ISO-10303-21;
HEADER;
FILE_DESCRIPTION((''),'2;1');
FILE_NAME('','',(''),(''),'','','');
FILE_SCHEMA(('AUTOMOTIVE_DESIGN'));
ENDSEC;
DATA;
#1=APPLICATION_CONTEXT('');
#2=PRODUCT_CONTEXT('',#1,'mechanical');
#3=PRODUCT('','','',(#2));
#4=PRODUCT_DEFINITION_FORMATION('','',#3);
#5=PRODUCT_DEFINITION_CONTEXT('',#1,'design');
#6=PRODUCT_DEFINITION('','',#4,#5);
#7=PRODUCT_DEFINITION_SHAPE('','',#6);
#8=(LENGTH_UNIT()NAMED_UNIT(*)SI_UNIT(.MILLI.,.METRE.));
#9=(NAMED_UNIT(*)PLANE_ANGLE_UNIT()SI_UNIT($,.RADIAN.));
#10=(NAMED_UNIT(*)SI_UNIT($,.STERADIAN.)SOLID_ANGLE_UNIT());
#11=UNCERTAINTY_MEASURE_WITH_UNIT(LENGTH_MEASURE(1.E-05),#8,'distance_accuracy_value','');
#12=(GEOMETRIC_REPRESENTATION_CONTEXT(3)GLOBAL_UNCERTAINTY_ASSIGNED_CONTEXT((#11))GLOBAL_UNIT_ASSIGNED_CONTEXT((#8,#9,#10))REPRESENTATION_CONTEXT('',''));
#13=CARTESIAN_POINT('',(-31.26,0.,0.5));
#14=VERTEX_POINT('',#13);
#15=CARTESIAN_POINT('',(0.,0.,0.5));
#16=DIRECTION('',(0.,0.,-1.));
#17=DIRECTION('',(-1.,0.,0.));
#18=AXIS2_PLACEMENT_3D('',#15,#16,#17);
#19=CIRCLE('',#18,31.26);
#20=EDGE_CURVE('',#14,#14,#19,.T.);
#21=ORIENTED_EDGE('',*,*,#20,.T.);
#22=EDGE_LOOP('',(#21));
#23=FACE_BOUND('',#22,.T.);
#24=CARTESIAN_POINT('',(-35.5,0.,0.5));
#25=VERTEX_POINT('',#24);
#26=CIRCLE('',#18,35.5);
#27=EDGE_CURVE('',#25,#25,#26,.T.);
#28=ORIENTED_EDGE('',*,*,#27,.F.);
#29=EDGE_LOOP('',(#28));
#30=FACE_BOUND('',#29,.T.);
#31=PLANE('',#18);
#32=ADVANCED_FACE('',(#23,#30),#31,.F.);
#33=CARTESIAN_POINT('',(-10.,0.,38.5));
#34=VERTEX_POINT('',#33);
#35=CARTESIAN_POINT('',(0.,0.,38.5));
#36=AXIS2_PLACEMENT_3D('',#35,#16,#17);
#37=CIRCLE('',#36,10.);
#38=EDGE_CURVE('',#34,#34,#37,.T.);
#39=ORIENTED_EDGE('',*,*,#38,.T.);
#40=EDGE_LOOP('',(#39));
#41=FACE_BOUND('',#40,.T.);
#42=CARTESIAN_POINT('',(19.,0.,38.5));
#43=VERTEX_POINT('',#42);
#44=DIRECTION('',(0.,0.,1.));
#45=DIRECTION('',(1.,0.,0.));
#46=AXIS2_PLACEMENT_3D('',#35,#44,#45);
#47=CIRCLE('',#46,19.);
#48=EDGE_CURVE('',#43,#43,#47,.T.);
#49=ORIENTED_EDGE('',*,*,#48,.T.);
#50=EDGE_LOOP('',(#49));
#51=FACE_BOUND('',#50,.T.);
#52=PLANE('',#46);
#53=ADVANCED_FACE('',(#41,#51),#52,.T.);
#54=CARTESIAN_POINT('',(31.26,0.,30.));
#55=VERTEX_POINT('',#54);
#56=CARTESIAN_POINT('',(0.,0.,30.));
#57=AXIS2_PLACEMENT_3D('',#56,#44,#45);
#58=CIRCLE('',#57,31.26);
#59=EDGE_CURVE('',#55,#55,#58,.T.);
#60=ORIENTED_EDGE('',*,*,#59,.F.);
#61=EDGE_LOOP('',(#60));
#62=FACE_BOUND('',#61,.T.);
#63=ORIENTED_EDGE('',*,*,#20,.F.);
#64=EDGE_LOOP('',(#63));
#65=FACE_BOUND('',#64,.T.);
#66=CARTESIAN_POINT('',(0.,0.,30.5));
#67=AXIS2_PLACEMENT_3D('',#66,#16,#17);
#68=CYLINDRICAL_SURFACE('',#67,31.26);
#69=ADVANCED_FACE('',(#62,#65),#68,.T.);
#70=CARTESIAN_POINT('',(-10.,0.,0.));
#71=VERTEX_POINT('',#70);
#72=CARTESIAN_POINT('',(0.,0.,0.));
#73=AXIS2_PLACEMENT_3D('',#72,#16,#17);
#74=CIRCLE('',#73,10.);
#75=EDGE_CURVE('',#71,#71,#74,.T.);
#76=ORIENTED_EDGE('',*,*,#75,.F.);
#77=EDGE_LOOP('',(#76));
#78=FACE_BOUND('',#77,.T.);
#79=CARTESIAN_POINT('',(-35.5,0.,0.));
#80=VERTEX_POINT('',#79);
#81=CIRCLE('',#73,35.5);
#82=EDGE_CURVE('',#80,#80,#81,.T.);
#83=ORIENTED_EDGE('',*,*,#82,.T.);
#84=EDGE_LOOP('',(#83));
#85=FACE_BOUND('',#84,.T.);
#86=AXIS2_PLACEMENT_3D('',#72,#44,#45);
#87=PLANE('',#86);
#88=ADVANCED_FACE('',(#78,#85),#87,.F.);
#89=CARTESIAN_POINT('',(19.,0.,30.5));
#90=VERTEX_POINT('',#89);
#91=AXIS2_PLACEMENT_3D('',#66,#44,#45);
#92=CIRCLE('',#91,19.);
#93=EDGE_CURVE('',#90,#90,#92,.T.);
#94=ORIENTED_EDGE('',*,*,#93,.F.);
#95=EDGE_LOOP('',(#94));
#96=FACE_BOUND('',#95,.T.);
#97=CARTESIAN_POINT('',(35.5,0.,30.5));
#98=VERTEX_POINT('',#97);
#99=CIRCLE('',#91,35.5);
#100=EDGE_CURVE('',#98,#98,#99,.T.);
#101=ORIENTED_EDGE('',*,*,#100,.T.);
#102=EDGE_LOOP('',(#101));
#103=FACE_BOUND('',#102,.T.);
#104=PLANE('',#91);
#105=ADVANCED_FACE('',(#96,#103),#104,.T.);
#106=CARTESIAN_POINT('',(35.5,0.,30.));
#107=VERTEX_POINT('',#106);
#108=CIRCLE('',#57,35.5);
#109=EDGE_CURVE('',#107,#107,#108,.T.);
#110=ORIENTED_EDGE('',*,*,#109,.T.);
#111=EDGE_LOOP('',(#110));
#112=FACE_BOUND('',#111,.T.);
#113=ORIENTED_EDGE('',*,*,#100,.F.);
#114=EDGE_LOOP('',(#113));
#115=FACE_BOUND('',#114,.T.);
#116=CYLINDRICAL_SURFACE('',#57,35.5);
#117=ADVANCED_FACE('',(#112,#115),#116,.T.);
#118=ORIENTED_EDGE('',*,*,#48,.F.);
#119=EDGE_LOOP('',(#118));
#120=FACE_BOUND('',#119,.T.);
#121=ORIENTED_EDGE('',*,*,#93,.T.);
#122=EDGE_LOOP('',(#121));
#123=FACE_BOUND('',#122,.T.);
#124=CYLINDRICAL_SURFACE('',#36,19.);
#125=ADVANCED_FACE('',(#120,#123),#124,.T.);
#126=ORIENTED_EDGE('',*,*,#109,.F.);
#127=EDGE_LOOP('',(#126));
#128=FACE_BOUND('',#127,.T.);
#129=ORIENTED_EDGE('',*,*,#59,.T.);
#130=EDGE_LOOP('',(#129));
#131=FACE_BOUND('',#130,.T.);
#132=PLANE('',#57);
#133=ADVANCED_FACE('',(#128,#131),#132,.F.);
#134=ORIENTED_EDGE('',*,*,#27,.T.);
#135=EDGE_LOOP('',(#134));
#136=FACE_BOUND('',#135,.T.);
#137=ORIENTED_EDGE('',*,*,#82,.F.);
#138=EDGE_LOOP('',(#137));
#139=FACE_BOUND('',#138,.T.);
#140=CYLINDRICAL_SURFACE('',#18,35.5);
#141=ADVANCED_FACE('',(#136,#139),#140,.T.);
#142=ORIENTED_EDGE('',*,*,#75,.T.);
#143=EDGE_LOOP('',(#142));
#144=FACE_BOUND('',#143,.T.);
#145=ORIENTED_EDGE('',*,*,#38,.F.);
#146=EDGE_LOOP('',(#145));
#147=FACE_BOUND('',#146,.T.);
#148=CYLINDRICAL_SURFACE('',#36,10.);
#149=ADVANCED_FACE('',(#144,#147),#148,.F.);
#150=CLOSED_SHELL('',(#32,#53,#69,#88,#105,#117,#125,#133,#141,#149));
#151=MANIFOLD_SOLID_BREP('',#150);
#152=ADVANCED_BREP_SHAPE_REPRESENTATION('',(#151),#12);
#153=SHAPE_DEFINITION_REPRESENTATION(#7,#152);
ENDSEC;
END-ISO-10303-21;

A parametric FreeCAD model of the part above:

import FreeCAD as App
import Part
import Sketcher

V = App.Vector
Q = App.Units.Quantity

doc = App.newDocument("Part")
body = doc.addObject("PartDesign::Body", "Body")

# Sketch on XY plane
sketch1 = body.newObject("Sketcher::SketchObject", "Sketch")
sketch1.AttachmentSupport = (doc.getObject("XY_Plane"), [""])
sketch1.MapMode = "FlatFace"
sketch1.addGeometry(Part.Circle(V(0, 0, 0), V(0, 0, 1), 31), False)
sketch1.addConstraint(Sketcher.Constraint("Coincident", 0, 3, -1, 1))
sketch1.addConstraint(Sketcher.Constraint("Diameter", 0, Q("62.52 mm")))
pad1 = body.newObject("PartDesign::Pad", "Pad")
pad1.Profile = sketch1
pad1.Length = 30.5

# Sketch on XY plane
sketch2 = body.newObject("Sketcher::SketchObject", "Sketch001")
sketch2.AttachmentSupport = (doc.getObject("XY_Plane"), [""])
sketch2.MapMode = "FlatFace"
sketch2.AttachmentOffset = App.Placement(V(0, 0, 30.5), App.Rotation())
sketch2.addGeometry(Part.Circle(V(0, 0, 0), V(0, 0, 1), 19), False)
sketch2.addConstraint(Sketcher.Constraint("Coincident", 0, 3, -1, 1))
sketch2.addConstraint(Sketcher.Constraint("Diameter", 0, Q("38 mm")))
pad2 = body.newObject("PartDesign::Pad", "Pad001")
pad2.Profile = sketch2
pad2.Length = 8

# Sketch on XY plane
sketch3 = body.newObject("Sketcher::SketchObject", "Sketch002")
sketch3.AttachmentSupport = (doc.getObject("XY_Plane"), [""])
sketch3.MapMode = "FlatFace"
sketch3.AttachmentOffset = App.Placement(V(0, 0, 30.5), App.Rotation())
sketch3.addGeometry(Part.Circle(V(0, 0, 0), V(0, 0, 1), 36), False)
sketch3.addConstraint(Sketcher.Constraint("Coincident", 0, 3, -1, 1))
sketch3.addConstraint(Sketcher.Constraint("Diameter", 0, Q("71 mm")))
pad3 = body.newObject("PartDesign::Pad", "Pad002")
pad3.Profile = sketch3
pad3.Length = 0.5
pad3.Reversed = True

# Sketch on XY plane
sketch4 = body.newObject("Sketcher::SketchObject", "Sketch003")
sketch4.AttachmentSupport = (doc.getObject("XY_Plane"), [""])
sketch4.MapMode = "FlatFace"
sketch4.addGeometry(Part.Circle(V(0, 0, 0), V(0, 0, 1), 36), False)
sketch4.addConstraint(Sketcher.Constraint("Coincident", 0, 3, -1, 1))
sketch4.addConstraint(Sketcher.Constraint("Diameter", 0, Q("71 mm")))
pad4 = body.newObject("PartDesign::Pad", "Pad003")
pad4.Profile = sketch4
pad4.Length = 0.5

# Sketch on XY plane
sketch5 = body.newObject("Sketcher::SketchObject", "Sketch004")
sketch5.AttachmentSupport = (doc.getObject("XY_Plane"), [""])
sketch5.MapMode = "FlatFace"
sketch5.addGeometry(Part.Circle(V(0, 0, 0), V(0, 0, 1), 10), False)
sketch5.addConstraint(Sketcher.Constraint("Coincident", 0, 3, -1, 1))
sketch5.addConstraint(Sketcher.Constraint("Diameter", 0, Q("20 mm")))
pocket1 = body.newObject("PartDesign::Pocket", "Pocket")
pocket1.Profile = sketch5
pocket1.Type = "ThroughAll"
pocket1.Reversed = True

doc.recompute()
